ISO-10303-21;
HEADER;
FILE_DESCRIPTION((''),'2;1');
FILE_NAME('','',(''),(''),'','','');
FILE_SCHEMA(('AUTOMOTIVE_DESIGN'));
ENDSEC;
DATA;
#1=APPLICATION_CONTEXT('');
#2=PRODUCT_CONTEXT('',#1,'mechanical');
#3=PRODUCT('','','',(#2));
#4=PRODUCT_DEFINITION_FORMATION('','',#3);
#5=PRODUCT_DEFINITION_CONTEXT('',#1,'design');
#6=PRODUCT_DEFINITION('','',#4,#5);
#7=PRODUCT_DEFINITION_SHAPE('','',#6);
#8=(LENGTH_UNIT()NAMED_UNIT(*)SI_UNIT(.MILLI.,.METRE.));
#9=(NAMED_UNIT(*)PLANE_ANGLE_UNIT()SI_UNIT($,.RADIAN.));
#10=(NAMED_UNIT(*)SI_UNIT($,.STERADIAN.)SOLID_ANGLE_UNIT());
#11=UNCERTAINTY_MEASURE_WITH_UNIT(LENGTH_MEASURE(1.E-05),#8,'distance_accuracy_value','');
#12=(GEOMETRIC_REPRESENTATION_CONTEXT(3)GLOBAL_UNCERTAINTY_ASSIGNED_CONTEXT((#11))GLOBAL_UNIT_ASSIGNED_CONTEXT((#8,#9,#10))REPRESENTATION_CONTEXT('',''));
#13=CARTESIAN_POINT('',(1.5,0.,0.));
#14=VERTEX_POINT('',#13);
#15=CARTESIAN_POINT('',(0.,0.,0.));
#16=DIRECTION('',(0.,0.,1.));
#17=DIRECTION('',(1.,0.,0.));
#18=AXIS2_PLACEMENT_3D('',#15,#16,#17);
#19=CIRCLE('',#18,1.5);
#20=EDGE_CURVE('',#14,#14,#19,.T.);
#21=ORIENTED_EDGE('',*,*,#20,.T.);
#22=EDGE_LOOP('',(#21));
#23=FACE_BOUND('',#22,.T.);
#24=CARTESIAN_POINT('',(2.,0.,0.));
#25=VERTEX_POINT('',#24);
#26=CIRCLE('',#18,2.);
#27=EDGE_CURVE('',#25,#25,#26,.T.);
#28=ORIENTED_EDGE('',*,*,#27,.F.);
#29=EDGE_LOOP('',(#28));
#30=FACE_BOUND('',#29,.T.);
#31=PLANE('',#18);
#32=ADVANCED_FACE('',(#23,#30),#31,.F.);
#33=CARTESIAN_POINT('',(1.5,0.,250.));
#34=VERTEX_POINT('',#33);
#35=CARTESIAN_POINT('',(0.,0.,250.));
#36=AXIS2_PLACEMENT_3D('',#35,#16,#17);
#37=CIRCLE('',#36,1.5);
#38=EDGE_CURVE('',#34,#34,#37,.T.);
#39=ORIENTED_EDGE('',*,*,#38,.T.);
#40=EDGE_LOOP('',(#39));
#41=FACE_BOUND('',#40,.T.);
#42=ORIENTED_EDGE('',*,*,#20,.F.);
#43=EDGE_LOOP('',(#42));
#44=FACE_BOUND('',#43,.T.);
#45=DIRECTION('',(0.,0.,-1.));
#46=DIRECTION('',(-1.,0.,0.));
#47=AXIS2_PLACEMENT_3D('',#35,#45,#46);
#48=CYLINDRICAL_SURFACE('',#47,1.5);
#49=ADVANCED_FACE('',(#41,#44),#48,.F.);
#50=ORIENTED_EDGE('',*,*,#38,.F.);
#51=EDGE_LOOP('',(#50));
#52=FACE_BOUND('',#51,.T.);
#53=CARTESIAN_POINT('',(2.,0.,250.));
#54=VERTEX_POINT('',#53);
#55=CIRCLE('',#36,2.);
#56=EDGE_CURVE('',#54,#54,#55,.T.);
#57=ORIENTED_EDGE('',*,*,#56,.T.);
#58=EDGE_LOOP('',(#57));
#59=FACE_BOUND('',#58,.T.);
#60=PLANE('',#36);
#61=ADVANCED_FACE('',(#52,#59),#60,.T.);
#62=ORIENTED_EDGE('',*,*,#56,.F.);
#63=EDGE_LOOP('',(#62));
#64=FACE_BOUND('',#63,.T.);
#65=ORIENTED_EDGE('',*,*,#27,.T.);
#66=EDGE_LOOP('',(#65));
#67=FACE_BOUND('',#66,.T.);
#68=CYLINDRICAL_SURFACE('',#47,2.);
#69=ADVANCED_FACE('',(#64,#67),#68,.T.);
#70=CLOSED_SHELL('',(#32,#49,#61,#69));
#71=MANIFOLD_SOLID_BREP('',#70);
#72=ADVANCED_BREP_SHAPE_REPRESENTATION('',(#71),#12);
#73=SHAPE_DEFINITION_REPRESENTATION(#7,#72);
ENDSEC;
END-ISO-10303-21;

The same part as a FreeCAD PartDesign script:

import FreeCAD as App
import Part
import Sketcher

V = App.Vector
Q = App.Units.Quantity

doc = App.newDocument("Part")
params = doc.addObject("Spreadsheet::Sheet", "Params")
for row, (alias, value) in enumerate([
    ("sketch1_diameter", "4 mm"),
    ("sketch1_diameter2", "3 mm"),
    ("pad1_length", "250 mm"),
], start=1):
    params.set(f"A{row}", alias)
    params.set(f"B{row}", "=" + value)
    params.setAlias(f"B{row}", alias)

body = doc.addObject("PartDesign::Body", "Body")

sketch1 = body.newObject("Sketcher::SketchObject", "Sketch")
sketch1.AttachmentSupport = (doc.getObject("XY_Plane"), [""])
sketch1.MapMode = "FlatFace"
sketch1.addGeometry(Part.Circle(V(0, 0, 0), V(0, 0, 1), 2), False)
sketch1.addGeometry(Part.Circle(V(0, 0, 0), V(0, 0, 1), 1.5), False)
sketch1.addConstraint(Sketcher.Constraint("Coincident", 0, 3, -1, 1))
sketch1.addConstraint(Sketcher.Constraint("Coincident", 1, 3, -1, 1))
sketch1.addConstraint(Sketcher.Constraint("Diameter", 0, Q("4 mm")))
sketch1.addConstraint(Sketcher.Constraint("Diameter", 1, Q("3 mm")))
sketch1.setExpression("Constraints[2]", "Params.sketch1_diameter")
sketch1.setExpression("Constraints[3]", "Params.sketch1_diameter2")
pad1 = body.newObject("PartDesign::Pad", "Pad")
pad1.Profile = sketch1
pad1.setExpression("Length", "Params.pad1_length")

doc.recompute()
